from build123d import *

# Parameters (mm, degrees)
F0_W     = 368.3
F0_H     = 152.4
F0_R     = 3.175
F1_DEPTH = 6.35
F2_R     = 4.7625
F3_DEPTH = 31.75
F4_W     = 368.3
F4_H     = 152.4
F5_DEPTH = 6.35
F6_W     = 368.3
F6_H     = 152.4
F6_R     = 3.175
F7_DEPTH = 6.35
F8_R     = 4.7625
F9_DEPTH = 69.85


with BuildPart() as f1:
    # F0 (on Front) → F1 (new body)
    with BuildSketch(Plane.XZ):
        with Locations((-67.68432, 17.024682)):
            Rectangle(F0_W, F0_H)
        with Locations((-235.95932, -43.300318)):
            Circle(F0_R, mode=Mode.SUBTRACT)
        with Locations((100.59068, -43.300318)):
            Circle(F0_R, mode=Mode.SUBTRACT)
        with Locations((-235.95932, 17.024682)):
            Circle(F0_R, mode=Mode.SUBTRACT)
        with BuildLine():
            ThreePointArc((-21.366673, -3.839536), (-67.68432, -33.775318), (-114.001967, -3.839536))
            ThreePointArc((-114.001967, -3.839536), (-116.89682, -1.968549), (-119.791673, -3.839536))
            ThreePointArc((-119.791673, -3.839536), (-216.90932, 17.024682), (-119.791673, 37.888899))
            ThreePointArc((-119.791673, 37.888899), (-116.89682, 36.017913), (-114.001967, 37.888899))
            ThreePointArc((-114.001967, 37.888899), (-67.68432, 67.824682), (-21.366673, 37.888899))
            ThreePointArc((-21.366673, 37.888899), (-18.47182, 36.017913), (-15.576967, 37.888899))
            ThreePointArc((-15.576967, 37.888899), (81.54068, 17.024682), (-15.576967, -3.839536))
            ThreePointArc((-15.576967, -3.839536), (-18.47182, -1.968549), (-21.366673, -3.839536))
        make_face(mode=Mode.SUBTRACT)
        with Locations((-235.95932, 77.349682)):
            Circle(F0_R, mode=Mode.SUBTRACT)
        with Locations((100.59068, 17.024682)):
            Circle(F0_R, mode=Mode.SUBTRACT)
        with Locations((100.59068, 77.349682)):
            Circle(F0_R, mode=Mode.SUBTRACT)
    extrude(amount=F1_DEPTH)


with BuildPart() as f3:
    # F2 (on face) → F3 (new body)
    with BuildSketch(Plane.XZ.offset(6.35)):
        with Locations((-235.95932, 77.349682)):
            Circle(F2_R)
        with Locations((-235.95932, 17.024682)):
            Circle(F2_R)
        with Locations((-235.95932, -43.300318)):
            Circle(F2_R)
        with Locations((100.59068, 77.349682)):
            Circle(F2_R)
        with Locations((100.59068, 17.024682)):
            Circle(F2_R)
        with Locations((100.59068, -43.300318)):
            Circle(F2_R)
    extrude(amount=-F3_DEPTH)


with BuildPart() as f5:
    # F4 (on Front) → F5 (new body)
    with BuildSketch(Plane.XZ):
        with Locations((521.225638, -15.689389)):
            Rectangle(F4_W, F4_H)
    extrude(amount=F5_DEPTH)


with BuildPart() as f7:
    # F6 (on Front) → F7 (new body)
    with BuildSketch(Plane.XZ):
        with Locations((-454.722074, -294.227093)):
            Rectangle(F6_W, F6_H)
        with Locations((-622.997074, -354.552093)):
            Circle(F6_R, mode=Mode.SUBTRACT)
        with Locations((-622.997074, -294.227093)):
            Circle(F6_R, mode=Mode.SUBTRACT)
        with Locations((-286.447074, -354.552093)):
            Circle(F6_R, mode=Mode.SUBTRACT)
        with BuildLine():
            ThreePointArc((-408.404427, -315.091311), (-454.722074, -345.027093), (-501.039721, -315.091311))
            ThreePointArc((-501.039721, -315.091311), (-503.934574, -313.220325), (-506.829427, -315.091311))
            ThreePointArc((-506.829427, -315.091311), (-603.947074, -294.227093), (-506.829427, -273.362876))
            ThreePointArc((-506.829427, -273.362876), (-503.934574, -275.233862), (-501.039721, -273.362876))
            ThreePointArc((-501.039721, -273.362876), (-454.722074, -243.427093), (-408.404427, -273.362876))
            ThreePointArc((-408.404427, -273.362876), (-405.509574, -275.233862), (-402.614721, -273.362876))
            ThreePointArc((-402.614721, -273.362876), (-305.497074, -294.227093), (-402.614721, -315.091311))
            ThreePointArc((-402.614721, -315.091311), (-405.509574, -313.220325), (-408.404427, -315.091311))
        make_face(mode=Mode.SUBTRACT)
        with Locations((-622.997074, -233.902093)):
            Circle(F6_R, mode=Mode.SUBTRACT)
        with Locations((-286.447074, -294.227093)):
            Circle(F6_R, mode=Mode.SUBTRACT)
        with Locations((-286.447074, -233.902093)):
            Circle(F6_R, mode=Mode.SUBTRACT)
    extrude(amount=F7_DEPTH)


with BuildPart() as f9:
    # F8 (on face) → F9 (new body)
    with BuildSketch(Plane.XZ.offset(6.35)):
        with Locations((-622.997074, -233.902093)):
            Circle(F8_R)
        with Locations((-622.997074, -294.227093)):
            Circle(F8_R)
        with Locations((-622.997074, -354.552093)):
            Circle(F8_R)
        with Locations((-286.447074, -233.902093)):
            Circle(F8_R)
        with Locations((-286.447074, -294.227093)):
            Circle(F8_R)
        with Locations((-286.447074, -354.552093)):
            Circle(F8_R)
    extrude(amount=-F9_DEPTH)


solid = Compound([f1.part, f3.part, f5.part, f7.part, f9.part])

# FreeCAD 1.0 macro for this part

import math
import FreeCAD as App
import Part
import Sketcher
from FreeCAD import Vector
Q = App.Units.Quantity

doc = App.newDocument("Part")
body = doc.addObject("PartDesign::Body", "Body")

# Sketch on XZ plane
sketch1 = doc.addObject("Sketcher::SketchObject", "Sketch")
body.addObject(sketch1)
sketch1.AttachmentSupport = (doc.XZ_Plane, [""])
sketch1.MapMode = "FlatFace"
sketch1.addGeometry([
    Part.LineSegment(Vector(-251.83432, 93.224682, 0), Vector(-251.83432, -59.175318, 0)),  # 0
    Part.LineSegment(Vector(-251.83432, -59.175318, 0), Vector(116.46568, -59.175318, 0)),  # 1
    Part.LineSegment(Vector(116.46568, -59.175318, 0), Vector(116.46568, 93.224682, 0)),  # 2
    Part.LineSegment(Vector(116.46568, 93.224682, 0), Vector(-251.83432, 93.224682, 0)),  # 3
    Part.Circle(Vector(-235.95932, -43.300318, 0), Vector(0, 0, 1), 3.175),  # 4
    Part.Circle(Vector(-235.95932, 17.024682, 0), Vector(0, 0, 1), 3.175),  # 5
    Part.Circle(Vector(100.59068, -43.300318, 0), Vector(0, 0, 1), 3.175),  # 6
    Part.ArcOfCircle(Part.Circle(Vector(-18.47182, -5.143549, 0), Vector(0, 0, 1), 3.175), math.radians(24.249613), math.radians(155.750387)),  # 7
    Part.ArcOfCircle(Part.Circle(Vector(-67.68432, 17.024682, 0), Vector(0, 0, 1), 50.8), math.radians(-155.750371), math.radians(-24.249629)),  # 8
    Part.ArcOfCircle(Part.Circle(Vector(-116.89682, -5.143549, 0), Vector(0, 0, 1), 3.175), math.radians(24.249613), math.radians(155.750387)),  # 9
    Part.ArcOfCircle(Part.Circle(Vector(-166.10932, 17.024681, 0), Vector(0, 0, 1), 50.8), math.radians(24.249629), math.radians(335.750371)),  # 10
    Part.ArcOfCircle(Part.Circle(Vector(-116.89682, 39.192913, 0), Vector(0, 0, 1), 3.175), math.radians(-155.750359), math.radians(-24.249641)),  # 11
    Part.ArcOfCircle(Part.Circle(Vector(-67.68432, 17.024682, 0), Vector(0, 0, 1), 50.8), math.radians(24.249628), math.radians(155.750372)),  # 12
    Part.ArcOfCircle(Part.Circle(Vector(-18.47182, 39.192913, 0), Vector(0, 0, 1), 3.175), math.radians(-155.750359), math.radians(-24.249641)),  # 13
    Part.ArcOfCircle(Part.Circle(Vector(30.74068, 17.024681, 0), Vector(0, 0, 1), 50.8), math.radians(-155.750371), math.radians(155.750371)),  # 14
    Part.Circle(Vector(100.59068, 17.024682, 0), Vector(0, 0, 1), 3.175),  # 15
    Part.Circle(Vector(-235.95932, 77.349682, 0), Vector(0, 0, 1), 3.175),  # 16
    Part.Circle(Vector(100.59068, 77.349682, 0), Vector(0, 0, 1), 3.175),  # 17
], False)
sketch1.addConstraint([
    Sketcher.Constraint("Coincident", 0, 2, 1, 1),
    Sketcher.Constraint("Coincident", 1, 2, 2, 1),
    Sketcher.Constraint("Coincident", 2, 2, 3, 1),
    Sketcher.Constraint("Coincident", 3, 2, 0, 1),
    Sketcher.Constraint("Tangent", 7, 2, 8, 2),
    Sketcher.Constraint("Tangent", 8, 1, 9, 1),
    Sketcher.Constraint("Tangent", 9, 2, 10, 2),
    Sketcher.Constraint("Tangent", 10, 1, 11, 1),
    Sketcher.Constraint("Tangent", 11, 2, 12, 2),
    Sketcher.Constraint("Tangent", 12, 1, 13, 1),
    Sketcher.Constraint("Tangent", 13, 2, 14, 2),
    Sketcher.Constraint("Tangent", 14, 1, 7, 1),
    Sketcher.Constraint("Vertical", 0),
    Sketcher.Constraint("Horizontal", 1),
    Sketcher.Constraint("Vertical", 2),
    Sketcher.Constraint("Horizontal", 3),
    Sketcher.Constraint("Coincident", 12, 3, 8, 3),
    Sketcher.Constraint("Equal", 4, 5),
    Sketcher.Constraint("Equal", 5, 6),
    Sketcher.Constraint("Equal", 6, 7),
    Sketcher.Constraint("Equal", 7, 9),
    Sketcher.Constraint("Equal", 8, 10),
    Sketcher.Constraint("Equal", 9, 11),
    Sketcher.Constraint("Equal", 10, 12),
    Sketcher.Constraint("Equal", 11, 13),
    Sketcher.Constraint("Equal", 12, 14),
    Sketcher.Constraint("Equal", 13, 15),
    Sketcher.Constraint("Equal", 15, 16),
    Sketcher.Constraint("Equal", 16, 17),
    Sketcher.Constraint("Horizontal", 4, 3, 6, 3),
    Sketcher.Constraint("Horizontal", 5, 3, 8, 3),
    Sketcher.Constraint("Horizontal", 7, 3, 9, 3),
    Sketcher.Constraint("Horizontal", 8, 3, 10, 3),
    Sketcher.Constraint("Horizontal", 11, 3, 13, 3),
    Sketcher.Constraint("Horizontal", 14, 3, 15, 3),
    Sketcher.Constraint("Horizontal", 16, 3, 17, 3),
    Sketcher.Constraint("Vertical", 4, 3, 5, 3),
    Sketcher.Constraint("Vertical", 6, 3, 15, 3),
    Sketcher.Constraint("Vertical", 5, 3, 16, 3),
    Sketcher.Constraint("Vertical", 15, 3, 17, 3),
    Sketcher.Constraint("Radius", 8, Q("2 in")),
    Sketcher.Constraint("Diameter", 4, Q("0.25 in")),
    Sketcher.Constraint("DistanceY", 0, 2, 0, 1, Q("6 in")),
    Sketcher.Constraint("DistanceX", 1, 1, 1, 2, Q("14.5 in")),
    Sketcher.Constraint("DistanceY", 0, 2, 5, 3, Q("3 in")),
    Sketcher.Constraint("DistanceX", 4, 3, 6, 3, Q("13.25 in")),
    Sketcher.Constraint("DistanceX", 5, 3, 10, 3, Q("2.75 in")),
    Sketcher.Constraint("DistanceX", 14, 3, 6, 3, Q("2.75 in")),
    Sketcher.Constraint("DistanceY", 4, 3, 16, 3, Q("4.75 in")),
    Sketcher.Constraint("DistanceY", 4, 3, 5, 3, Q("2.375 in")),
    Sketcher.Constraint("DistanceX", 0, 2, 4, 3, Q("0.625 in")),
    Sketcher.Constraint("DistanceY", -1, 1, 10, 1, 37.888899),
    Sketcher.Constraint("DistanceX", 4, 3, -1, 1, 235.95932),
])
pad1 = doc.addObject("PartDesign::Pad", "Pad")
body.addObject(pad1)
pad1.Profile = sketch1
pad1.Length = Q("0.25 in")
body2 = doc.addObject("PartDesign::Body", "Body001")
body2.AllowCompound = True

# Sketch on XZ plane
sketch2 = doc.addObject("Sketcher::SketchObject", "Sketch001")
body2.addObject(sketch2)
sketch2.AttachmentSupport = (doc.getObject("XZ_Plane001"), [""])
sketch2.MapMode = "FlatFace"
sketch2.AttachmentOffset = App.Placement(Vector(0, 0, 0.25 * 25.4), App.Rotation())
sketch2.addGeometry([
    Part.Circle(Vector(-235.95932, 77.349682, 0), Vector(0, 0, 1), 4.7625),  # 0
    Part.Circle(Vector(-235.95932, 17.024682, 0), Vector(0, 0, 1), 4.7625),  # 1
    Part.Circle(Vector(-235.95932, -43.300318, 0), Vector(0, 0, 1), 4.7625),  # 2
    Part.Circle(Vector(100.59068, 77.349682, 0), Vector(0, 0, 1), 4.7625),  # 3
    Part.Circle(Vector(100.59068, 17.024682, 0), Vector(0, 0, 1), 4.7625),  # 4
    Part.Circle(Vector(100.59068, -43.300318, 0), Vector(0, 0, 1), 4.7625),  # 5
], False)
sketch2.addConstraint([
    Sketcher.Constraint("Equal", 0, 1),
    Sketcher.Constraint("Equal", 1, 2),
    Sketcher.Constraint("Equal", 2, 3),
    Sketcher.Constraint("Equal", 3, 4),
    Sketcher.Constraint("Equal", 4, 5),
    Sketcher.Constraint("Horizontal", 0, 3, 3, 3),
    Sketcher.Constraint("Horizontal", 1, 3, 4, 3),
    Sketcher.Constraint("Horizontal", 2, 3, 5, 3),
    Sketcher.Constraint("Vertical", 0, 3, 1, 3),
    Sketcher.Constraint("Vertical", 1, 3, 2, 3),
    Sketcher.Constraint("Vertical", 3, 3, 4, 3),
    Sketcher.Constraint("Vertical", 4, 3, 5, 3),
    Sketcher.Constraint("Diameter", 0, Q("0.375 in")),
    Sketcher.Constraint("DistanceY", 2, 3, 0, 3, Q("4.75 in")),
    Sketcher.Constraint("DistanceX", 0, 3, 3, 3, Q("13.25 in")),
    Sketcher.Constraint("DistanceY", 1, 3, 0, 3, Q("2.375 in")),
    Sketcher.Constraint("DistanceX", 0, 3, -1, 1, 235.95932),
    Sketcher.Constraint("DistanceY", -1, 1, 0, 3, 77.349682),
])
pad2 = doc.addObject("PartDesign::Pad", "Pad001")
body2.addObject(pad2)
pad2.Profile = sketch2
pad2.Length = Q("1.25 in")
pad2.Reversed = True
body3 = doc.addObject("PartDesign::Body", "Body002")

# Sketch on XZ plane
sketch3 = doc.addObject("Sketcher::SketchObject", "Sketch002")
body3.addObject(sketch3)
sketch3.AttachmentSupport = (doc.getObject("XZ_Plane002"), [""])
sketch3.MapMode = "FlatFace"
sketch3.addGeometry([
    Part.LineSegment(Vector(337.075638, 60.510611, 0), Vector(337.075638, -91.889389, 0)),
    Part.LineSegment(Vector(337.075638, -91.889389, 0), Vector(705.375638, -91.889389, 0)),
    Part.LineSegment(Vector(705.375638, -91.889389, 0), Vector(705.375638, 60.510611, 0)),
    Part.LineSegment(Vector(705.375638, 60.510611, 0), Vector(337.075638, 60.510611, 0)),
], False)
sketch3.addConstraint([
    Sketcher.Constraint("Coincident", 0, 2, 1, 1),
    Sketcher.Constraint("Coincident", 1, 2, 2, 1),
    Sketcher.Constraint("Coincident", 2, 2, 3, 1),
    Sketcher.Constraint("Coincident", 3, 2, 0, 1),
    Sketcher.Constraint("Vertical", 0),
    Sketcher.Constraint("Horizontal", 1),
    Sketcher.Constraint("Vertical", 2),
    Sketcher.Constraint("Horizontal", 3),
    Sketcher.Constraint("DistanceY", 0, 2, 0, 1, Q("6 in")),
    Sketcher.Constraint("DistanceX", 1, 1, 1, 2, Q("14.5 in")),
    Sketcher.Constraint("DistanceX", -1, 1, 0, 2, 337.075638),
    Sketcher.Constraint("DistanceY", 0, 2, -1, 1, 91.889389),
])
pad3 = doc.addObject("PartDesign::Pad", "Pad002")
body3.addObject(pad3)
pad3.Profile = sketch3
pad3.Length = Q("0.25 in")
body4 = doc.addObject("PartDesign::Body", "Body003")

# Sketch on XZ plane
sketch4 = doc.addObject("Sketcher::SketchObject", "Sketch003")
body4.addObject(sketch4)
sketch4.AttachmentSupport = (doc.getObject("XZ_Plane003"), [""])
sketch4.MapMode = "FlatFace"
sketch4.addGeometry([
    Part.LineSegment(Vector(-638.872074, -218.027093, 0), Vector(-638.872074, -370.427093, 0)),  # 0
    Part.LineSegment(Vector(-638.872074, -370.427093, 0), Vector(-270.572074, -370.427093, 0)),  # 1
    Part.LineSegment(Vector(-270.572074, -370.427093, 0), Vector(-270.572074, -218.027093, 0)),  # 2
    Part.LineSegment(Vector(-270.572074, -218.027093, 0), Vector(-638.872074, -218.027093, 0)),  # 3
    Part.Circle(Vector(-622.997074, -354.552093, 0), Vector(0, 0, 1), 3.175),  # 4
    Part.Circle(Vector(-622.997074, -294.227093, 0), Vector(0, 0, 1), 3.175),  # 5
    Part.ArcOfCircle(Part.Circle(Vector(-405.509574, -316.395325, 0), Vector(0, 0, 1), 3.175), math.radians(24.249641), math.radians(155.750359)),  # 6
    Part.ArcOfCircle(Part.Circle(Vector(-454.722074, -294.227093, 0), Vector(0, 0, 1), 50.8), math.radians(-155.750371), math.radians(-24.249629)),  # 7
    Part.ArcOfCircle(Part.Circle(Vector(-503.934574, -316.395325, 0), Vector(0, 0, 1), 3.175), math.radians(24.249641), math.radians(155.750359)),  # 8
    Part.ArcOfCircle(Part.Circle(Vector(-553.147074, -294.227094, 0), Vector(0, 0, 1), 50.8), math.radians(24.249629), math.radians(335.750371)),  # 9
    Part.ArcOfCircle(Part.Circle(Vector(-503.934574, -272.058862, 0), Vector(0, 0, 1), 3.175), math.radians(-155.750359), math.radians(-24.249641)),  # 10
    Part.ArcOfCircle(Part.Circle(Vector(-454.722074, -294.227093, 0), Vector(0, 0, 1), 50.8), math.radians(24.249628), math.radians(155.750372)),  # 11
    Part.ArcOfCircle(Part.Circle(Vector(-405.509574, -272.058862, 0), Vector(0, 0, 1), 3.175), math.radians(-155.750359), math.radians(-24.249641)),  # 12
    Part.ArcOfCircle(Part.Circle(Vector(-356.297074, -294.227094, 0), Vector(0, 0, 1), 50.8), math.radians(-155.750371), math.radians(155.750371)),  # 13
    Part.Circle(Vector(-286.447074, -354.552093, 0), Vector(0, 0, 1), 3.175),  # 14
    Part.Circle(Vector(-286.447074, -294.227093, 0), Vector(0, 0, 1), 3.175),  # 15
    Part.Circle(Vector(-622.997074, -233.902093, 0), Vector(0, 0, 1), 3.175),  # 16
    Part.Circle(Vector(-286.447074, -233.902093, 0), Vector(0, 0, 1), 3.175),  # 17
], False)
sketch4.addConstraint([
    Sketcher.Constraint("Coincident", 0, 2, 1, 1),
    Sketcher.Constraint("Coincident", 1, 2, 2, 1),
    Sketcher.Constraint("Coincident", 2, 2, 3, 1),
    Sketcher.Constraint("Coincident", 3, 2, 0, 1),
    Sketcher.Constraint("Tangent", 6, 2, 7, 2),
    Sketcher.Constraint("Tangent", 7, 1, 8, 1),
    Sketcher.Constraint("Tangent", 8, 2, 9, 2),
    Sketcher.Constraint("Tangent", 9, 1, 10, 1),
    Sketcher.Constraint("Tangent", 10, 2, 11, 2),
    Sketcher.Constraint("Tangent", 11, 1, 12, 1),
    Sketcher.Constraint("Tangent", 12, 2, 13, 2),
    Sketcher.Constraint("Tangent", 13, 1, 6, 1),
    Sketcher.Constraint("Vertical", 0),
    Sketcher.Constraint("Horizontal", 1),
    Sketcher.Constraint("Vertical", 2),
    Sketcher.Constraint("Horizontal", 3),
    Sketcher.Constraint("Coincident", 11, 3, 7, 3),
    Sketcher.Constraint("Equal", 4, 5),
    Sketcher.Constraint("Equal", 5, 6),
    Sketcher.Constraint("Equal", 6, 8),
    Sketcher.Constraint("Equal", 7, 9),
    Sketcher.Constraint("Equal", 8, 10),
    Sketcher.Constraint("Equal", 9, 11),
    Sketcher.Constraint("Equal", 10, 12),
    Sketcher.Constraint("Equal", 11, 13),
    Sketcher.Constraint("Equal", 12, 14),
    Sketcher.Constraint("Equal", 14, 15),
    Sketcher.Constraint("Equal", 15, 16),
    Sketcher.Constraint("Equal", 16, 17),
    Sketcher.Constraint("Horizontal", 5, 3, 7, 3),
    Sketcher.Constraint("Horizontal", 6, 3, 8, 3),
    Sketcher.Constraint("Horizontal", 7, 3, 9, 3),
    Sketcher.Constraint("Horizontal", 10, 3, 12, 3),
    Sketcher.Constraint("Horizontal", 4, 3, 14, 3),
    Sketcher.Constraint("Horizontal", 13, 3, 15, 3),
    Sketcher.Constraint("Horizontal", 16, 3, 17, 3),
    Sketcher.Constraint("Vertical", 4, 3, 5, 3),
    Sketcher.Constraint("Vertical", 14, 3, 15, 3),
    Sketcher.Constraint("Vertical", 5, 3, 16, 3),
    Sketcher.Constraint("Vertical", 15, 3, 17, 3),
    Sketcher.Constraint("Radius", 7, Q("2 in")),
    Sketcher.Constraint("Diameter", 4, Q("0.25 in")),
    Sketcher.Constraint("DistanceY", 0, 2, 0, 1, Q("6 in")),
    Sketcher.Constraint("DistanceX", 1, 1, 1, 2, Q("14.5 in")),
    Sketcher.Constraint("DistanceY", 0, 2, 5, 3, Q("3 in")),
    Sketcher.Constraint("DistanceX", 5, 3, 9, 3, Q("2.75 in")),
    Sketcher.Constraint("DistanceX", 13, 3, 14, 3, Q("2.75 in")),
    Sketcher.Constraint("DistanceY", 4, 3, 16, 3, Q("4.75 in")),
    Sketcher.Constraint("DistanceY", 4, 3, 5, 3, Q("2.375 in")),
    Sketcher.Constraint("DistanceX", 5, 3, 6, 3, Q("8.5625 in")),
    Sketcher.Constraint("DistanceX", 0, 2, 4, 3, Q("0.625 in")),
    Sketcher.Constraint("DistanceY", 10, 3, -1, 1, 272.058862),
    Sketcher.Constraint("DistanceX", 7, 1, -1, 1, 501.039721),
])
pad4 = doc.addObject("PartDesign::Pad", "Pad003")
body4.addObject(pad4)
pad4.Profile = sketch4
pad4.Length = Q("0.25 in")
body5 = doc.addObject("PartDesign::Body", "Body004")
body5.AllowCompound = True

# Sketch on XZ plane
sketch5 = doc.addObject("Sketcher::SketchObject", "Sketch004")
body5.addObject(sketch5)
sketch5.AttachmentSupport = (doc.getObject("XZ_Plane004"), [""])
sketch5.MapMode = "FlatFace"
sketch5.AttachmentOffset = App.Placement(Vector(0, 0, 0.25 * 25.4), App.Rotation())
sketch5.addGeometry([
    Part.Circle(Vector(-622.997074, -233.902093, 0), Vector(0, 0, 1), 4.7625),  # 0
    Part.Circle(Vector(-622.997074, -294.227093, 0), Vector(0, 0, 1), 4.7625),  # 1
    Part.Circle(Vector(-622.997074, -354.552093, 0), Vector(0, 0, 1), 4.7625),  # 2
    Part.Circle(Vector(-286.447074, -233.902093, 0), Vector(0, 0, 1), 4.7625),  # 3
    Part.Circle(Vector(-286.447074, -294.227093, 0), Vector(0, 0, 1), 4.7625),  # 4
    Part.Circle(Vector(-286.447074, -354.552093, 0), Vector(0, 0, 1), 4.7625),  # 5
], False)
sketch5.addConstraint([
    Sketcher.Constraint("Equal", 0, 1),
    Sketcher.Constraint("Equal", 1, 2),
    Sketcher.Constraint("Equal", 2, 3),
    Sketcher.Constraint("Equal", 3, 4),
    Sketcher.Constraint("Equal", 4, 5),
    Sketcher.Constraint("Horizontal", 0, 3, 3, 3),
    Sketcher.Constraint("Horizontal", 1, 3, 4, 3),
    Sketcher.Constraint("Horizontal", 2, 3, 5, 3),
    Sketcher.Constraint("Vertical", 0, 3, 1, 3),
    Sketcher.Constraint("Vertical", 1, 3, 2, 3),
    Sketcher.Constraint("Vertical", 3, 3, 4, 3),
    Sketcher.Constraint("Vertical", 4, 3, 5, 3),
    Sketcher.Constraint("Diameter", 0, Q("0.375 in")),
    Sketcher.Constraint("DistanceY", 2, 3, 0, 3, Q("4.75 in")),
    Sketcher.Constraint("DistanceX", 0, 3, 3, 3, Q("13.25 in")),
    Sketcher.Constraint("DistanceY", 1, 3, 0, 3, Q("2.375 in")),
    Sketcher.Constraint("DistanceX", 0, 3, -1, 1, 622.997074),
    Sketcher.Constraint("DistanceY", 0, 3, -1, 1, 233.902093),
])
pad5 = doc.addObject("PartDesign::Pad", "Pad004")
body5.addObject(pad5)
pad5.Profile = sketch5
pad5.Length = Q("2.75 in")
pad5.Reversed = True

doc.recompute()
